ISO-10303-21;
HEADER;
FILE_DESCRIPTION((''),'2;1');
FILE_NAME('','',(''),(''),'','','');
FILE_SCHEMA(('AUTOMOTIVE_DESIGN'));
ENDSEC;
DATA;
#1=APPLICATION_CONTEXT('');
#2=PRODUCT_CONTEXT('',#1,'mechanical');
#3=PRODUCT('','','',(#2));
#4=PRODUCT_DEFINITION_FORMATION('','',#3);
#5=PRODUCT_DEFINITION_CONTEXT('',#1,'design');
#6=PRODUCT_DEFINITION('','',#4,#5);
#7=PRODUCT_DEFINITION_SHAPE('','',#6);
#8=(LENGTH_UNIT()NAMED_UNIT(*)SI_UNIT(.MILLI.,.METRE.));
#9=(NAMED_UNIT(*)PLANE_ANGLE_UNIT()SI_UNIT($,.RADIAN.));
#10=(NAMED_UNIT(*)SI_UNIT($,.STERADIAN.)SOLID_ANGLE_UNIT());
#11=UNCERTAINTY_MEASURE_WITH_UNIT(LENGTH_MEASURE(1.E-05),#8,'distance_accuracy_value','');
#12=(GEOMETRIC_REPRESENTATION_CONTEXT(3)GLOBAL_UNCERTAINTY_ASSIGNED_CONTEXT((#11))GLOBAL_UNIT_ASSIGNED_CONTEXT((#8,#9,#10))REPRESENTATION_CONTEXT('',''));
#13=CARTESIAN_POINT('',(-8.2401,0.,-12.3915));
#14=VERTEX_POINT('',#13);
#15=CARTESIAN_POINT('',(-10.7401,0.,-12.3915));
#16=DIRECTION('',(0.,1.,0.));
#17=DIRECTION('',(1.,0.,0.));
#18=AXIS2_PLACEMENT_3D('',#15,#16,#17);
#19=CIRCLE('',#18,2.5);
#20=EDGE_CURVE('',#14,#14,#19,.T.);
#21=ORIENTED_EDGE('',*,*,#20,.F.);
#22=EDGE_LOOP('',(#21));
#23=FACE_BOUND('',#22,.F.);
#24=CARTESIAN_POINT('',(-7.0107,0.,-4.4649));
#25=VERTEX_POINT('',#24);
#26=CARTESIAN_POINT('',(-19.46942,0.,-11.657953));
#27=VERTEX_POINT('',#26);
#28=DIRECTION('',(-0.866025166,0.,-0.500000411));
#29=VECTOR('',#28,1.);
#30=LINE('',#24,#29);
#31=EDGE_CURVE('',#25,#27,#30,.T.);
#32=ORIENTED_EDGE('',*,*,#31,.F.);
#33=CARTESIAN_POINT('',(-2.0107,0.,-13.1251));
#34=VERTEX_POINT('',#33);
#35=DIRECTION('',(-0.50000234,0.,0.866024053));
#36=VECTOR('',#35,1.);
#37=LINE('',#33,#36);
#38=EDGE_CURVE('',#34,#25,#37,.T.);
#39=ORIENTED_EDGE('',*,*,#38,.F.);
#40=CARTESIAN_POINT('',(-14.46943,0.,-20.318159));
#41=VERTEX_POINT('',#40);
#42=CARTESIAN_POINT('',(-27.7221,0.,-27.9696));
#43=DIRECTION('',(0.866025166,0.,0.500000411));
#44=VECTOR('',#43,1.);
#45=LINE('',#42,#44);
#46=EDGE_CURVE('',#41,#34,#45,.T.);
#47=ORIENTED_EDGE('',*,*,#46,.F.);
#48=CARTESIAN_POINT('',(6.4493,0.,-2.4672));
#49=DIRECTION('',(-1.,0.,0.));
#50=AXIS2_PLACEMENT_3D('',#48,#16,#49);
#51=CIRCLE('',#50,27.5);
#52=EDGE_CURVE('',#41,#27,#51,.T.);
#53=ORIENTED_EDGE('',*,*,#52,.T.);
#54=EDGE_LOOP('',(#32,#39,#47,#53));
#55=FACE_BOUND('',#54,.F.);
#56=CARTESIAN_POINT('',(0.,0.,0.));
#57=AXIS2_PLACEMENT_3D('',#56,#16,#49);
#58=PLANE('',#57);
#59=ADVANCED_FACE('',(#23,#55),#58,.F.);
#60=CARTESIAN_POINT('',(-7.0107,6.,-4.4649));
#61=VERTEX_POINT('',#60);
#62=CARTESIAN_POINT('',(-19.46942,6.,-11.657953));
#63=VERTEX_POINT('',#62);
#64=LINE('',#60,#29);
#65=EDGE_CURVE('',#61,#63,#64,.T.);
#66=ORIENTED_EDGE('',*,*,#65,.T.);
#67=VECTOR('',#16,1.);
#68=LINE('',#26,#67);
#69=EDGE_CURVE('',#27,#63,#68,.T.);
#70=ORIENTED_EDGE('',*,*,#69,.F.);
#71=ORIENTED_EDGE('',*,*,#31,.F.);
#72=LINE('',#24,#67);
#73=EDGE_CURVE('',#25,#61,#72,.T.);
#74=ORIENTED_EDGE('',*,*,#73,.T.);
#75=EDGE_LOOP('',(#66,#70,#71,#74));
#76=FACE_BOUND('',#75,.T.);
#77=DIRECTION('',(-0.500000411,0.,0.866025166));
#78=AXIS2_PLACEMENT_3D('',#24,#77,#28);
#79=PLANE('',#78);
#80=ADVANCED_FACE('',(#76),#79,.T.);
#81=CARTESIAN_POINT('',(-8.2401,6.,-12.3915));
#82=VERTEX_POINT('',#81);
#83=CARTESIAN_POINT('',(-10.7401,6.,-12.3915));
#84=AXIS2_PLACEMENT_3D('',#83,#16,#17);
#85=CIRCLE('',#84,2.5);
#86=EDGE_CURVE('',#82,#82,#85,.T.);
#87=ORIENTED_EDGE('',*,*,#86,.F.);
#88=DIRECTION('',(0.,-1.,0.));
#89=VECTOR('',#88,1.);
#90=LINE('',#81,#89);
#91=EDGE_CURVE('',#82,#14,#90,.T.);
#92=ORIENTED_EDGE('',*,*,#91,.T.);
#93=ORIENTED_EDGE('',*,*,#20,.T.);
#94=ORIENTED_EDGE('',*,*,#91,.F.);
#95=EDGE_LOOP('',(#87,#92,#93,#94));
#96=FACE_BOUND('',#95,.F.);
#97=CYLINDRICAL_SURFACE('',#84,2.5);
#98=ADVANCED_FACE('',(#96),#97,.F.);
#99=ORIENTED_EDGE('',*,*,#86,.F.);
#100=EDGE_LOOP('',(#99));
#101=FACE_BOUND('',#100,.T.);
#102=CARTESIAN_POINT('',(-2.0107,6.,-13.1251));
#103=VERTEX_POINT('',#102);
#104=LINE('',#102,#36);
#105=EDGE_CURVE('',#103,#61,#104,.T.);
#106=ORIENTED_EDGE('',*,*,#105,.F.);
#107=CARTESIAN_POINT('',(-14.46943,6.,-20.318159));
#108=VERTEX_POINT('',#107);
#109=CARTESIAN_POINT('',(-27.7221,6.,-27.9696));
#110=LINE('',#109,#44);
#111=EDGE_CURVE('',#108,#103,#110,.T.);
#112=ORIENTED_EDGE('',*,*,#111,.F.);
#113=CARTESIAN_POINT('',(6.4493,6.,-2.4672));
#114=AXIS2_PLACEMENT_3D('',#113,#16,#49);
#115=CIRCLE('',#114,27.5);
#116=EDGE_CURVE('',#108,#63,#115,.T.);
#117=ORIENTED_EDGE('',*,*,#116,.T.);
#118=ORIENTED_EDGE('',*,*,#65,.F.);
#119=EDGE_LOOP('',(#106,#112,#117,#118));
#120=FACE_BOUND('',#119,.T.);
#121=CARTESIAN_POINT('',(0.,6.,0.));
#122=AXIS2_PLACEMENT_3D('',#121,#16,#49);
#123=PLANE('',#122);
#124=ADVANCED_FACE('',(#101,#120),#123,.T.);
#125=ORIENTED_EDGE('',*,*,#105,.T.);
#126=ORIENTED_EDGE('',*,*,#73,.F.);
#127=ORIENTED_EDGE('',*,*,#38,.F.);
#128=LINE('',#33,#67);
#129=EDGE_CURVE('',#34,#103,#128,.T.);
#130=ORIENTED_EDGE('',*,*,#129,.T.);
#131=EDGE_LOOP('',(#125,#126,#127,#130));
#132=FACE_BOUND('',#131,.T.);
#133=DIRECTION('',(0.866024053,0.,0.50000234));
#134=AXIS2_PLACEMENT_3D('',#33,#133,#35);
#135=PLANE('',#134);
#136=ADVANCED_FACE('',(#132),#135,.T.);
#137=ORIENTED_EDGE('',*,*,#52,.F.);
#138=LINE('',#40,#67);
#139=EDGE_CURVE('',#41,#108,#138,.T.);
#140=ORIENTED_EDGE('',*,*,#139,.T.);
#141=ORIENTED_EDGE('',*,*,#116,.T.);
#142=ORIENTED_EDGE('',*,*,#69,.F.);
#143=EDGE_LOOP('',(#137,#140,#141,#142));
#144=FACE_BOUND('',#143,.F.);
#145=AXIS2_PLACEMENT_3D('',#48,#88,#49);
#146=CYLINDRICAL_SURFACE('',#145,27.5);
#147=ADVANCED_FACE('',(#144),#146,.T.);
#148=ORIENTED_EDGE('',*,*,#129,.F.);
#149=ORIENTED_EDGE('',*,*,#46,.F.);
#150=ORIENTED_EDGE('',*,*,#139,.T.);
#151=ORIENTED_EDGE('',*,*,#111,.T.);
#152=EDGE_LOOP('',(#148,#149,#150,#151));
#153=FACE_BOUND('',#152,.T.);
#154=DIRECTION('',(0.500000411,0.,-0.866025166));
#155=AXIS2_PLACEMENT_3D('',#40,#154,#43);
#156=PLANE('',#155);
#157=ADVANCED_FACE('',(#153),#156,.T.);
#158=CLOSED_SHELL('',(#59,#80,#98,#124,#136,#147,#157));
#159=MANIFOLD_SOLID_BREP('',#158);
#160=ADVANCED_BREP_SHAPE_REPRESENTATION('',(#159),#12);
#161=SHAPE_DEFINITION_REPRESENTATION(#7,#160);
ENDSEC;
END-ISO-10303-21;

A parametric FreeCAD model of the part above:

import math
import FreeCAD as App
import Part
import Sketcher
Q = App.Units.Quantity

doc = App.newDocument("Part")
body = doc.addObject("PartDesign::Body", "Body")

# Sketch on XZ plane
sketch1 = body.newObject("Sketcher::SketchObject", "Sketch")
sketch1.AttachmentSupport = (doc.getObject("XZ_Plane"), [""])
sketch1.MapMode = "FlatFace"
sketch1.addGeometry([
    Part.ArcOfCircle(Part.Circle(App.Vector(6.4493, -2.4672, 0), App.Vector(0, 0, 1), 27.5), math.radians(-160.475542), math.radians(-139.524278)),
    Part.LineSegment(App.Vector(-19.46942, -11.657953, 0), App.Vector(-7.0107, -4.4649, 0)),
    Part.LineSegment(App.Vector(-7.0107, -4.4649, 0), App.Vector(-2.0107, -13.1251, 0)),
    Part.LineSegment(App.Vector(-2.0107, -13.1251, 0), App.Vector(-14.46943, -20.318159, 0)),
], False)
sketch1.addConstraint([
    Sketcher.Constraint("Coincident", 0, 1, 1, 1),
    Sketcher.Constraint("Coincident", 1, 2, 2, 1),
    Sketcher.Constraint("Coincident", 2, 2, 3, 1),
    Sketcher.Constraint("Coincident", 3, 2, 0, 2),
    Sketcher.Constraint("Perpendicular", 1, 2),
    Sketcher.Constraint("Perpendicular", 2, 3),
    Sketcher.Constraint("Equal", 1, 3),
    Sketcher.Constraint("Radius", 0, Q("27.5 mm")),
    Sketcher.Constraint("Angle", 1, Q("30 deg")),
    Sketcher.Constraint("Distance", 2, Q("10 mm")),
    Sketcher.Constraint("DistanceX", 1, 2, 0, 3, Q("13.46 mm")),
    Sketcher.Constraint("DistanceY", 0, 1, -1, 1, Q("11.658 mm")),
    Sketcher.Constraint("DistanceX", -1, 1, 0, 3, Q("6.4493 mm")),
])
pad1 = body.newObject("PartDesign::Pad", "Pad")
pad1.Profile = sketch1
pad1.Length = 6
pad1.Reversed = True

# Sketch on XZ plane
sketch2 = body.newObject("Sketcher::SketchObject", "Sketch001")
sketch2.AttachmentSupport = (doc.getObject("XZ_Plane"), [""])
sketch2.MapMode = "FlatFace"
sketch2.AttachmentOffset = App.Placement(App.Vector(0, 0, -6), App.Rotation())
sketch2.addGeometry(Part.Circle(App.Vector(-10.7401, -12.3915, 0), App.Vector(0, 0, 1), 2.5), False)
sketch2.addConstraint([
    Sketcher.Constraint("Diameter", 0, Q("5 mm")),
    Sketcher.Constraint("DistanceX", 0, 3, -1, 1, Q("10.74 mm")),
    Sketcher.Constraint("DistanceY", 0, 3, -1, 1, Q("12.3915 mm")),
])
pocket1 = body.newObject("PartDesign::Pocket", "Pocket")
pocket1.Profile = sketch2
pocket1.Type = "ThroughAll"
pocket1.Reversed = True

doc.recompute()
